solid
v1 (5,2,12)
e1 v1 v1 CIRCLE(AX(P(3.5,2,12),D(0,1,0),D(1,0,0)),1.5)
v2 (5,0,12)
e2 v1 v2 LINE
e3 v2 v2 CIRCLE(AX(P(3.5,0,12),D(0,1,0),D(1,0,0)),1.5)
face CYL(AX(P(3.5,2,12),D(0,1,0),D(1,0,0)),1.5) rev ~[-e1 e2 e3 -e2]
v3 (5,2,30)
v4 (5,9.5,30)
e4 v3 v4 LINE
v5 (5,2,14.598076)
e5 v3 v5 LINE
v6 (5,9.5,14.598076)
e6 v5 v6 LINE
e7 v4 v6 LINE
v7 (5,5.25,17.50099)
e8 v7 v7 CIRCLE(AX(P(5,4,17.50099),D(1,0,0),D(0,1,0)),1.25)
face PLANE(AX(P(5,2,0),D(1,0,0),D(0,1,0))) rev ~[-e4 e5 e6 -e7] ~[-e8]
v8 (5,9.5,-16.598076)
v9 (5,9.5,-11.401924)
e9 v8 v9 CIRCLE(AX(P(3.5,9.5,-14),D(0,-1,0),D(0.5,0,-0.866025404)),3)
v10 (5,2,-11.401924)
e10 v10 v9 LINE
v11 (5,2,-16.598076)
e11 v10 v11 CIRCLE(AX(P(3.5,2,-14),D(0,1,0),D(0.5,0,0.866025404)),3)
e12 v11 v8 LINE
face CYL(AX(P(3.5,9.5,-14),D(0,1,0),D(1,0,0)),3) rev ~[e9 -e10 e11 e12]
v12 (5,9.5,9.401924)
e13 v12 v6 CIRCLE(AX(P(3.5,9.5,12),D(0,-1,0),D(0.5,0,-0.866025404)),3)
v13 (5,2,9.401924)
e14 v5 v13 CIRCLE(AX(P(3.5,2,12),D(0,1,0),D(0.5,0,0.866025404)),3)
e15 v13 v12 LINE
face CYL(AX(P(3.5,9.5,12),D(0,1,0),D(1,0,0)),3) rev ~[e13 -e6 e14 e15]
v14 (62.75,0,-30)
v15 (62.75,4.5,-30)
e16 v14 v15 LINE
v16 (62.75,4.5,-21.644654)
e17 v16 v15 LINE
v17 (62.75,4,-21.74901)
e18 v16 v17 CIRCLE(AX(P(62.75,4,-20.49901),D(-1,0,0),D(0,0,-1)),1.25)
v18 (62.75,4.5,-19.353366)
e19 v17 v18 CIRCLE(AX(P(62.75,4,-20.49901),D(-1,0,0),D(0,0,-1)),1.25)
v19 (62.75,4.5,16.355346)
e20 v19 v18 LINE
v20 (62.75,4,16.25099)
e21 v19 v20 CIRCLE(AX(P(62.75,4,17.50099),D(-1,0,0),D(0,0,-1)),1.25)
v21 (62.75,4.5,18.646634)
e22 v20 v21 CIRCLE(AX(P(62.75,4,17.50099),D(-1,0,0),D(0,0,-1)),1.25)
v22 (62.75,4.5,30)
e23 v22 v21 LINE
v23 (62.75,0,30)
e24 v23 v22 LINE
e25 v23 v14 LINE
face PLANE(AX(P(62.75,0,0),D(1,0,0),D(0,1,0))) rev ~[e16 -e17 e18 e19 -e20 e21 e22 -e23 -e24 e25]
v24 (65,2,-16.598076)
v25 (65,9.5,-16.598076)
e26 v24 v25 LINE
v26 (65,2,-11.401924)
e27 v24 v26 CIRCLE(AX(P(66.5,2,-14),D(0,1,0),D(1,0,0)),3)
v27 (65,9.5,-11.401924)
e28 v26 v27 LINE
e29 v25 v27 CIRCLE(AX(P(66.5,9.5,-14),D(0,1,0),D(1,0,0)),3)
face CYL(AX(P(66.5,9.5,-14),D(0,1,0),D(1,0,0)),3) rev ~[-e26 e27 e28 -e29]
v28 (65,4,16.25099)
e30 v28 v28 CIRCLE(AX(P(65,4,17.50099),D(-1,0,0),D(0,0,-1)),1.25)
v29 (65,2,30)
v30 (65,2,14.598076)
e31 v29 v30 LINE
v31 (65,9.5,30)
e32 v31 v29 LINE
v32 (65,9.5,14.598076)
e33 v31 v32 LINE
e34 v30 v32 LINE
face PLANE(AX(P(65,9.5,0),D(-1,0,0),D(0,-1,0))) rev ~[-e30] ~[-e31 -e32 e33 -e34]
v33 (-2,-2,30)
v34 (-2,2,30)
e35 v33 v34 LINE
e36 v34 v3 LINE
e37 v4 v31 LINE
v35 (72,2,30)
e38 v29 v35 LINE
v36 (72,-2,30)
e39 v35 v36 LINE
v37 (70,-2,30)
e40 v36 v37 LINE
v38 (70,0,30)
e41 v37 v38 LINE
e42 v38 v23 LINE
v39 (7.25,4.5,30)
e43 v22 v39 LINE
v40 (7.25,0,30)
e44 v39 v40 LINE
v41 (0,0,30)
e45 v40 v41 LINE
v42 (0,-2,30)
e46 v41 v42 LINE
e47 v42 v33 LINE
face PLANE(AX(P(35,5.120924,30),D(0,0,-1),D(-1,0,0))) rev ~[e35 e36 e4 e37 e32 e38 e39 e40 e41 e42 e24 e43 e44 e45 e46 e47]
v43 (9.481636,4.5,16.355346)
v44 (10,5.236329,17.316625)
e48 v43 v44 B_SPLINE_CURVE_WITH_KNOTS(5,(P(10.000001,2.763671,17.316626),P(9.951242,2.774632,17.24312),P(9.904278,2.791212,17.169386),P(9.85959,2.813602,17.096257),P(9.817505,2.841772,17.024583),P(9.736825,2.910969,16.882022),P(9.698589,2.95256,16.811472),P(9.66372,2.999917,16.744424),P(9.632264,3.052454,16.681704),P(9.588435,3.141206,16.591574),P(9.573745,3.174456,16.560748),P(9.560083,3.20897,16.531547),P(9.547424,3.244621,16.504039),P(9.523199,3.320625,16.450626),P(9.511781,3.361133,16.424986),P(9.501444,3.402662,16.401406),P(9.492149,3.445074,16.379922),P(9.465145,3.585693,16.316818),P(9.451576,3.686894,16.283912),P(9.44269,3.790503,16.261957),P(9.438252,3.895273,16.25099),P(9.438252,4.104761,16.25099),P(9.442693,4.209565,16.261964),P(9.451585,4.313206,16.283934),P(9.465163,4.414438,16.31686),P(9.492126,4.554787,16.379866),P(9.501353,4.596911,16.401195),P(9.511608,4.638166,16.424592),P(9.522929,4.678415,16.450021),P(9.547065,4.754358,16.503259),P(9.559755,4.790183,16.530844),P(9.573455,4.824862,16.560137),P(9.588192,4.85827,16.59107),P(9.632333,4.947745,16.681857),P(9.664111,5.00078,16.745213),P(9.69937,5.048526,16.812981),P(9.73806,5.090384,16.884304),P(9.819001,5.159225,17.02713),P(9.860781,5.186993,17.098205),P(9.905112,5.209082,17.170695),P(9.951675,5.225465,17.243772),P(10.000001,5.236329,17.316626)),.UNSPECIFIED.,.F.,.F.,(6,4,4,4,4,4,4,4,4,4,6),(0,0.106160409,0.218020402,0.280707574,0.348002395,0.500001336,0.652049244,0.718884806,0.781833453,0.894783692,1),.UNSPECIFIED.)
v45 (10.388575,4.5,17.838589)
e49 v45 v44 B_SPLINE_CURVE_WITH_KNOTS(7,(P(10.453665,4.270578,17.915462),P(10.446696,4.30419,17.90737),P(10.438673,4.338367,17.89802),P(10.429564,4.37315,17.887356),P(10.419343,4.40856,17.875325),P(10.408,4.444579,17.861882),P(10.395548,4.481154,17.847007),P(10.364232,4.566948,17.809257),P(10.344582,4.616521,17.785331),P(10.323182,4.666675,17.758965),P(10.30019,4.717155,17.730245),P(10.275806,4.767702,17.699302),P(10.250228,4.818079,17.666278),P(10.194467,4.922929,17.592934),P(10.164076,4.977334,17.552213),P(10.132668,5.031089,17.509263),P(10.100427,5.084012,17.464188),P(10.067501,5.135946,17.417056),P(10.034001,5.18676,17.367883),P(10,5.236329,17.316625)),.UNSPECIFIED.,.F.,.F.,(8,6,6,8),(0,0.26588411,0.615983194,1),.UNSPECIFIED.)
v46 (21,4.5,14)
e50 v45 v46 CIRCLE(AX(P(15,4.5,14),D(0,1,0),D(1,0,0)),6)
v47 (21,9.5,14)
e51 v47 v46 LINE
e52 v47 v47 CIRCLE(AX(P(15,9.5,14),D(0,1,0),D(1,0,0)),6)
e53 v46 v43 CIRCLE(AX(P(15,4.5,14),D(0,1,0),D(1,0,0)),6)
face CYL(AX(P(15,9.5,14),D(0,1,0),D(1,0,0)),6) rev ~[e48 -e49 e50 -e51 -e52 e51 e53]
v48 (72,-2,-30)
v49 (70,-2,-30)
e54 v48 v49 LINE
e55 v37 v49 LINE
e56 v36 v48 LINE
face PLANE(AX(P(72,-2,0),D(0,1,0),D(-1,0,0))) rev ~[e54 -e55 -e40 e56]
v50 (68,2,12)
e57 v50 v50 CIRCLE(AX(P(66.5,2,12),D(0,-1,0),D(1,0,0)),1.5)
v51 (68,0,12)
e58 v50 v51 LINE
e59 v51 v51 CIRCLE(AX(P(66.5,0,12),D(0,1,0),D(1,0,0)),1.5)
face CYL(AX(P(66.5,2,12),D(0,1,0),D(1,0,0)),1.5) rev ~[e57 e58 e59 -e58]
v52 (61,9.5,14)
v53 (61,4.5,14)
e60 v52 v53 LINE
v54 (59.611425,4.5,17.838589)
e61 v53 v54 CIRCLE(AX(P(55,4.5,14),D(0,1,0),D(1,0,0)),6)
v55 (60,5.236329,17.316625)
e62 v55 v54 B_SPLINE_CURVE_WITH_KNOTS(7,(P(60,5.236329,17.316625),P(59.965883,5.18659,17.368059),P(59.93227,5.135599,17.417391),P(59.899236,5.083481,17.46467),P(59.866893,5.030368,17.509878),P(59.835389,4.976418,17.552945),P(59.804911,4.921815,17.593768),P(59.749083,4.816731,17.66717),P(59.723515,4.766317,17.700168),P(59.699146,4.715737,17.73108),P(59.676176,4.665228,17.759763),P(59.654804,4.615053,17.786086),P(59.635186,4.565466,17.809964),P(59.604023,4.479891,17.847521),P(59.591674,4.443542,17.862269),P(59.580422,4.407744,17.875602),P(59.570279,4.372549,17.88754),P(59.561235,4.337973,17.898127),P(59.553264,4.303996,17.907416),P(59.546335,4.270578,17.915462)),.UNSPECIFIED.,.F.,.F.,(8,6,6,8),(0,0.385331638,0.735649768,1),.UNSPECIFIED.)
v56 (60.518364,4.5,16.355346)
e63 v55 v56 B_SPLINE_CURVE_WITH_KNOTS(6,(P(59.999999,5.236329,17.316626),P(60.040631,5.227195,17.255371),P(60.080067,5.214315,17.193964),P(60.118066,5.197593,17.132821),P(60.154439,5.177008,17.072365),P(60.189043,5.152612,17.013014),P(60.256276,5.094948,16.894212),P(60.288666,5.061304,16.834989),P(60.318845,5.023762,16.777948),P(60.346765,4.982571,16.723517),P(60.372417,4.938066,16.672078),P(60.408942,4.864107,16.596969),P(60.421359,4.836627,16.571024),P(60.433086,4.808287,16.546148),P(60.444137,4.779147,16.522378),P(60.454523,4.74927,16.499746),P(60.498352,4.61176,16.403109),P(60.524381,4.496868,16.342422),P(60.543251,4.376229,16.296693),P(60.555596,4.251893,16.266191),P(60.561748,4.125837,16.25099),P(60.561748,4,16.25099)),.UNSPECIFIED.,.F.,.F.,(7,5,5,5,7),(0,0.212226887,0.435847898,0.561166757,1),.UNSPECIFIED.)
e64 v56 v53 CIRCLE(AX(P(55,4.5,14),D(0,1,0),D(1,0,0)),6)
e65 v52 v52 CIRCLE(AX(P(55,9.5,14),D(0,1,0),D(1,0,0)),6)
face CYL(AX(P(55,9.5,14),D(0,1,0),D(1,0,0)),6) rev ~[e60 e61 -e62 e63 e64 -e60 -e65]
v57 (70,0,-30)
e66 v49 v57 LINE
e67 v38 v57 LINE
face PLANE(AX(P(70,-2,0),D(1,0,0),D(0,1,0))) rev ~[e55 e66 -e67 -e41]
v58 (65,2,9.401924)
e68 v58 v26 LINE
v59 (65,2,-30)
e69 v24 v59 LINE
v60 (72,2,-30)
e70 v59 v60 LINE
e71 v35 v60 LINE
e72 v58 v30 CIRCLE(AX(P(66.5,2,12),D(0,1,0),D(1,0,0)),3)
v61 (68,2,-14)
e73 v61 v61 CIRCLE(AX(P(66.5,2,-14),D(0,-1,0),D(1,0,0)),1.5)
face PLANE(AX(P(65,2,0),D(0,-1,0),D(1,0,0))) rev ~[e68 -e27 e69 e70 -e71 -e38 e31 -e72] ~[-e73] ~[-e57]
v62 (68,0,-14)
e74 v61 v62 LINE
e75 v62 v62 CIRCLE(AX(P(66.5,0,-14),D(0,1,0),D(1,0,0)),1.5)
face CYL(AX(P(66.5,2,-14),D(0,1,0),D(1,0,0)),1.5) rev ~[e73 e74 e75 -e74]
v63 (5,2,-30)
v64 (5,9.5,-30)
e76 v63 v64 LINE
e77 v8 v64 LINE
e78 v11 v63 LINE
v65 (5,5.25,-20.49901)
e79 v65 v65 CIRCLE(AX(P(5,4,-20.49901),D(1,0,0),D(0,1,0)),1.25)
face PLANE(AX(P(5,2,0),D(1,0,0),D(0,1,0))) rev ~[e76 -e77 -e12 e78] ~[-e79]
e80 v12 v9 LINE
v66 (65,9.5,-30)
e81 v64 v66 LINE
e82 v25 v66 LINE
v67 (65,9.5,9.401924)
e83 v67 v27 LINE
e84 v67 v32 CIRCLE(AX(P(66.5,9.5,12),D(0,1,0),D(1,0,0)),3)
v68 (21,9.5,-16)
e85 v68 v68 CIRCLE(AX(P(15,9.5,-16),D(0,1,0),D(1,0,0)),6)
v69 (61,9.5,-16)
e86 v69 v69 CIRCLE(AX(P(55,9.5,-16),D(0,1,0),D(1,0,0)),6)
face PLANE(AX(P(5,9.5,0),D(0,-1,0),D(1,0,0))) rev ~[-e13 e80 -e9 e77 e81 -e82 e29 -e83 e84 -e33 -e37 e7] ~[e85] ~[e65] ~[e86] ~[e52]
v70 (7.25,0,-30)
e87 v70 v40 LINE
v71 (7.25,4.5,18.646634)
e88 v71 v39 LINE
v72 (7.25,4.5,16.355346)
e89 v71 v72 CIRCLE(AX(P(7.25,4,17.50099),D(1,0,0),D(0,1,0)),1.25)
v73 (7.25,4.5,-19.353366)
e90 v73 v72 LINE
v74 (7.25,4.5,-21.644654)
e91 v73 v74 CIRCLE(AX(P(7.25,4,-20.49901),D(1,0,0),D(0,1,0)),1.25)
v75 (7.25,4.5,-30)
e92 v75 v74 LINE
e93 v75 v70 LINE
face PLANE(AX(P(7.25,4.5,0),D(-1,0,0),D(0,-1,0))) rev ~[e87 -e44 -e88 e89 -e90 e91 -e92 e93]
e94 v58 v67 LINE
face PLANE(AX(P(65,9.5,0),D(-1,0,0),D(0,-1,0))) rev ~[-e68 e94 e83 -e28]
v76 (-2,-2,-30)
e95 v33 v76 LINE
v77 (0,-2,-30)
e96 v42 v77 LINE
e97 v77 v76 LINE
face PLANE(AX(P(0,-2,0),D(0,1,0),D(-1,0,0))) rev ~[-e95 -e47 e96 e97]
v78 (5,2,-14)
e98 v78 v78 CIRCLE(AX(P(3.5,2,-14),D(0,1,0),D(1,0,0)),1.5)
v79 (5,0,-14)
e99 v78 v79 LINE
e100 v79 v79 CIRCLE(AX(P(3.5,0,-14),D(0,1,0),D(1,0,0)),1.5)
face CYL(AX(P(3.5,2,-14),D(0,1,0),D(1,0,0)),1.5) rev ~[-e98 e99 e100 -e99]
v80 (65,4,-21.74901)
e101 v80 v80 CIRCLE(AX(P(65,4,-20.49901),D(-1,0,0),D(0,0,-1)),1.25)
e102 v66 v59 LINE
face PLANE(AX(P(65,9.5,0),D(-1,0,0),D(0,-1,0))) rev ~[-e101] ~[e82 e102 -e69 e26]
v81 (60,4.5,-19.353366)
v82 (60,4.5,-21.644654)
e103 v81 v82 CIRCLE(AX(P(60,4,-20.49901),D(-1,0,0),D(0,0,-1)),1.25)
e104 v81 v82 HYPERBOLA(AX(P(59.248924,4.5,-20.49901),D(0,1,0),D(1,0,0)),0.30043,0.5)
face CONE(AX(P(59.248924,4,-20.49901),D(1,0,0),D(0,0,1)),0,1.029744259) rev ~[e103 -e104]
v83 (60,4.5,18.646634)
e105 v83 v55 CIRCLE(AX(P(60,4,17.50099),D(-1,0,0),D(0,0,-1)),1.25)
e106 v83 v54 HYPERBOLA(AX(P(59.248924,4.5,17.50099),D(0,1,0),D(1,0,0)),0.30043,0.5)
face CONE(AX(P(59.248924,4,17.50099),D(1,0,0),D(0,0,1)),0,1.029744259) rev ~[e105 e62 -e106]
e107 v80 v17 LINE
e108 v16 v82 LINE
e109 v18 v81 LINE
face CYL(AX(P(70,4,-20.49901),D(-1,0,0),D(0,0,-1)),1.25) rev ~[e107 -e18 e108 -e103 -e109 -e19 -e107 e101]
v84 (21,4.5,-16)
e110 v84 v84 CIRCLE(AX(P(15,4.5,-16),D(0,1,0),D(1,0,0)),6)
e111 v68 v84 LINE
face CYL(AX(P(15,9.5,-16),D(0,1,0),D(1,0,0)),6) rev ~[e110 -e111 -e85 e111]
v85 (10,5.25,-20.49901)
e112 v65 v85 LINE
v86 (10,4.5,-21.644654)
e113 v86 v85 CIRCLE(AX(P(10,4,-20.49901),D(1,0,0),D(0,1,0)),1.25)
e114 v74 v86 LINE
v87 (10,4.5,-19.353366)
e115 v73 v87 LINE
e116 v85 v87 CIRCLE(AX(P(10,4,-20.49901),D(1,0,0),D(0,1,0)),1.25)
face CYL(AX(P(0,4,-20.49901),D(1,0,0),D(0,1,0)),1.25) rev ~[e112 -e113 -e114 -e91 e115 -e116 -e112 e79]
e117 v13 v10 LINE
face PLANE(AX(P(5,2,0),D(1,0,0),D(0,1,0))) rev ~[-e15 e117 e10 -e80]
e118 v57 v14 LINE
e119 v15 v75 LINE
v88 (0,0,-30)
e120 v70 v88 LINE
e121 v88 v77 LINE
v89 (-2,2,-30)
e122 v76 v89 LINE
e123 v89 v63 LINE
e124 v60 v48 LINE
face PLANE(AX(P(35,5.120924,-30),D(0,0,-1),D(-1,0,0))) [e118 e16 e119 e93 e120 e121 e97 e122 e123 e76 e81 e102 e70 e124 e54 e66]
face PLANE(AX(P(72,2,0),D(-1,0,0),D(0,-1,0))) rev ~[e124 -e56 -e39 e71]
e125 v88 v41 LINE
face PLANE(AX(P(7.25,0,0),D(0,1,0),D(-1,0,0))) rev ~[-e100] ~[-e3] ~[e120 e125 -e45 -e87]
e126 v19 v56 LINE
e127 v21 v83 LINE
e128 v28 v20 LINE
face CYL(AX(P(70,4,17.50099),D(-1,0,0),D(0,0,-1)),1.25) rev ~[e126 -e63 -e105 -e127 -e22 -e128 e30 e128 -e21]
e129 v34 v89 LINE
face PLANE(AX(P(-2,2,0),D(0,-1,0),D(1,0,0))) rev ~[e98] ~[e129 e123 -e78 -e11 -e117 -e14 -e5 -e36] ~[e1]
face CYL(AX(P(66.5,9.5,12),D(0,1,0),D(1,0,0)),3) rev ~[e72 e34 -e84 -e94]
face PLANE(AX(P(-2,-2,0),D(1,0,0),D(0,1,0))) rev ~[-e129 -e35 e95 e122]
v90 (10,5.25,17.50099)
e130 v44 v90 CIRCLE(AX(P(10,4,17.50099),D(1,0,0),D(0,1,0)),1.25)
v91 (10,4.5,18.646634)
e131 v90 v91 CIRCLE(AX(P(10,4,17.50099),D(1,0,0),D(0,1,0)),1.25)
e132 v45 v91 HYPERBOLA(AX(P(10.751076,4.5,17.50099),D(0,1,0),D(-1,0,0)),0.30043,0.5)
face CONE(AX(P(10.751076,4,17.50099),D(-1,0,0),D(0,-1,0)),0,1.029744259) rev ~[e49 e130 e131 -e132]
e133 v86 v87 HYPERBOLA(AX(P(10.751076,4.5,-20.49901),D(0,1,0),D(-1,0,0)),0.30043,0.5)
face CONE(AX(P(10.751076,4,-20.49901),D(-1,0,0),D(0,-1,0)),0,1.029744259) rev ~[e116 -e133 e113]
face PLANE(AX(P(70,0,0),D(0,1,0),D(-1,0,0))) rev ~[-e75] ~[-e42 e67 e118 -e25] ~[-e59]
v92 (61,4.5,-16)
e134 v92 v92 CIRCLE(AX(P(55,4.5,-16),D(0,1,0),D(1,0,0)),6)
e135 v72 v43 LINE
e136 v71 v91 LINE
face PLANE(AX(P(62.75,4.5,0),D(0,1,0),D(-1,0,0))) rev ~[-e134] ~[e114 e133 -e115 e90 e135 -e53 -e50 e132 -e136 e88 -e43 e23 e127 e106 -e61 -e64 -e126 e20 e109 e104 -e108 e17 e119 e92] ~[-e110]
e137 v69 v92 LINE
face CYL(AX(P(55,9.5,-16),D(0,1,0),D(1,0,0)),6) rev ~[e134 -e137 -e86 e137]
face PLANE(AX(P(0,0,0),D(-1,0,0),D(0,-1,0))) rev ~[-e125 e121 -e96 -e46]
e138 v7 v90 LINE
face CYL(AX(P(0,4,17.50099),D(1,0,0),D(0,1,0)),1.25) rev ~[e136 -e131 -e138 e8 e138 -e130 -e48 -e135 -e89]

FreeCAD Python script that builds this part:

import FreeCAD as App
import Part
import Sketcher

V = App.Vector
Q = App.Units.Quantity


def add_polygon(sketch, points):
    """Adds a closed chain of lines whose ends are joined by coincident constraints."""
    first, n = sketch.GeometryCount, len(points)
    for a, b in zip(points, points[1:] + points[:1]):
        sketch.addGeometry(Part.LineSegment(App.Vector(*a, 0), App.Vector(*b, 0)), False)
    for i in range(n):
        sketch.addConstraint(Sketcher.Constraint("Coincident", first + i, 2, first + (i + 1) % n, 1))

doc = App.newDocument("Part")
body = doc.addObject("PartDesign::Body", "Body")

# Sketch on XY plane
sketch1 = body.newObject("Sketcher::SketchObject", "Sketch")
sketch1.AttachmentSupport = (doc.getObject("XY_Plane"), [""])
sketch1.MapMode = "FlatFace"
add_polygon(sketch1, [(0, -2), (0, 0), (7.25, 0), (7.25, 4.5), (62.75, 4.5), (62.75, 0), (70, 0), (70, -2), (72, -2), (72, 2), (65, 2), (65, 9.5), (5, 9.5), (5, 2), (-2, 2), (-2, -2)])  # lines 0-15
sketch1.addConstraint([
    Sketcher.Constraint("Vertical", 0),
    Sketcher.Constraint("Horizontal", 1),
    Sketcher.Constraint("Vertical", 2),
    Sketcher.Constraint("Horizontal", 3),
    Sketcher.Constraint("Vertical", 4),
    Sketcher.Constraint("Horizontal", 5),
    Sketcher.Constraint("Vertical", 6),
    Sketcher.Constraint("Horizontal", 7),
    Sketcher.Constraint("Vertical", 8),
    Sketcher.Constraint("Horizontal", 9),
    Sketcher.Constraint("Vertical", 10),
    Sketcher.Constraint("Horizontal", 11),
    Sketcher.Constraint("Vertical", 12),
    Sketcher.Constraint("Horizontal", 13),
    Sketcher.Constraint("Vertical", 14),
    Sketcher.Constraint("Horizontal", 15),
    Sketcher.Constraint("Coincident", 0, 2, -1, 1),
    Sketcher.Constraint("PointOnObject", 4, 2, -1),
    Sketcher.Constraint("Horizontal", 9, 2, 12, 2),
    Sketcher.Constraint("Horizontal", 7, 2, 14, 2),
    Sketcher.Constraint("Equal", 1, 5),
    Sketcher.Constraint("Equal", 9, 13),
    Sketcher.Constraint("Equal", 7, 15),
    Sketcher.Constraint("Equal", 15, 0),
    Sketcher.Constraint("DistanceX", 7, 1, 7, 2, Q("2 mm")),
    Sketcher.Constraint("DistanceX", 9, 2, 9, 1, Q("7 mm")),
    Sketcher.Constraint("DistanceX", 11, 2, 11, 1, Q("60 mm")),
    Sketcher.Constraint("DistanceY", 8, 1, 8, 2, Q("4 mm")),
    Sketcher.Constraint("DistanceX", 3, 1, 3, 2, Q("55.5 mm")),
    Sketcher.Constraint("DistanceY", 2, 1, 2, 2, Q("4.5 mm")),
    Sketcher.Constraint("DistanceY", 10, 1, 10, 2, Q("7.5 mm")),
])
pad1 = body.newObject("PartDesign::Pad", "Pad")
pad1.Profile = sketch1
pad1.Length = 60
pad1.Midplane = True

# Sketch on YZ plane
sketch2 = body.newObject("Sketcher::SketchObject", "Sketch001")
sketch2.AttachmentSupport = (doc.getObject("YZ_Plane"), [""])
sketch2.MapMode = "FlatFace"
sketch2.AttachmentOffset = App.Placement(V(0, 0, 5), App.Rotation())
sketch2.addGeometry([
    Part.Circle(V(4, 17.50099, 0), V(0, 0, 1), 1.25),
    Part.Circle(V(4, -20.49901, 0), V(0, 0, 1), 1.25),
], False)
sketch2.addConstraint([
    Sketcher.Constraint("Equal", 0, 1),
    Sketcher.Constraint("Vertical", 0, 3, 1, 3),
    Sketcher.Constraint("Diameter", 0, Q("2.5 mm")),
    Sketcher.Constraint("DistanceX", -1, 1, 0, 3, Q("4 mm")),
    Sketcher.Constraint("DistanceY", 1, 3, 0, 3, Q("38 mm")),
    Sketcher.Constraint("DistanceY", -1, 1, 0, 3, Q("17.50099 mm")),
])
doc.recompute()
hole = body.newObject("PartDesign::Hole", "Hole")
hole.Profile = sketch2
hole.ThreadType = "None"
hole.Diameter = 2.5
hole.DepthType = "Dimension"
hole.Depth = 5
hole.DrillPoint = "Angled"
hole.DrillPointAngle = 118
hole.Reversed = True

# Sketch on YZ plane
sketch3 = body.newObject("Sketcher::SketchObject", "Sketch002")
sketch3.AttachmentSupport = (doc.getObject("YZ_Plane"), [""])
sketch3.MapMode = "FlatFace"
sketch3.AttachmentOffset = App.Placement(V(0, 0, 65), App.Rotation())
sketch3.addGeometry([
    Part.Circle(V(4, 17.50099, 0), V(0, 0, 1), 1.25),
    Part.Circle(V(4, -20.49901, 0), V(0, 0, 1), 1.25),
], False)
sketch3.addConstraint([
    Sketcher.Constraint("Equal", 0, 1),
    Sketcher.Constraint("Vertical", 0, 3, 1, 3),
    Sketcher.Constraint("Diameter", 0, Q("2.5 mm")),
    Sketcher.Constraint("DistanceX", -1, 1, 0, 3, Q("4 mm")),
    Sketcher.Constraint("DistanceY", 1, 3, 0, 3, Q("38 mm")),
    Sketcher.Constraint("DistanceY", -1, 1, 0, 3, Q("17.50099 mm")),
])
doc.recompute()
hole2 = body.newObject("PartDesign::Hole", "Hole001")
hole2.Profile = sketch3
hole2.ThreadType = "None"
hole2.Diameter = 2.5
hole2.DepthType = "Dimension"
hole2.Depth = 5
hole2.DrillPoint = "Angled"
hole2.DrillPointAngle = 118

# Sketch on XZ plane
sketch4 = body.newObject("Sketcher::SketchObject", "Sketch003")
sketch4.AttachmentSupport = (doc.getObject("XZ_Plane"), [""])
sketch4.MapMode = "FlatFace"
sketch4.AttachmentOffset = App.Placement(V(0, 0, -2), App.Rotation())
sketch4.addGeometry([
    Part.Circle(V(3.5, -14, 0), V(0, 0, 1), 1.5),
    Part.Circle(V(66.5, -14, 0), V(0, 0, 1), 1.5),
    Part.Circle(V(3.5, 12, 0), V(0, 0, 1), 1.5),
    Part.Circle(V(66.5, 12, 0), V(0, 0, 1), 1.5),
], False)
sketch4.addConstraint([
    Sketcher.Constraint("Equal", 0, 1),
    Sketcher.Constraint("Equal", 1, 2),
    Sketcher.Constraint("Equal", 2, 3),
    Sketcher.Constraint("Horizontal", 0, 3, 1, 3),
    Sketcher.Constraint("Horizontal", 2, 3, 3, 3),
    Sketcher.Constraint("Vertical", 0, 3, 2, 3),
    Sketcher.Constraint("Vertical", 1, 3, 3, 3),
    Sketcher.Constraint("Diameter", 0, Q("3 mm")),
    Sketcher.Constraint("DistanceY", 0, 3, -1, 1, Q("14 mm")),
    Sketcher.Constraint("DistanceY", -1, 1, 2, 3, Q("12 mm")),
    Sketcher.Constraint("DistanceX", 0, 3, 1, 3, Q("63 mm")),
    Sketcher.Constraint("DistanceX", -1, 1, 0, 3, Q("3.5 mm")),
])
pocket1 = body.newObject("PartDesign::Pocket", "Pocket")
pocket1.Profile = sketch4
pocket1.Type = "ThroughAll"
pocket1.Reversed = True

# Sketch on XZ plane
sketch5 = body.newObject("Sketcher::SketchObject", "Sketch004")
sketch5.AttachmentSupport = (doc.getObject("XZ_Plane"), [""])
sketch5.MapMode = "FlatFace"
sketch5.AttachmentOffset = App.Placement(V(0, 0, -9.5), App.Rotation())
sketch5.addGeometry([
    Part.Circle(V(3.5, -14, 0), V(0, 0, 1), 3),
    Part.Circle(V(3.5, 12, 0), V(0, 0, 1), 3),
    Part.Circle(V(66.5, -14, 0), V(0, 0, 1), 3),
    Part.Circle(V(66.5, 12, 0), V(0, 0, 1), 3),
], False)
sketch5.addConstraint([
    Sketcher.Constraint("Equal", 0, 1),
    Sketcher.Constraint("Equal", 1, 2),
    Sketcher.Constraint("Equal", 2, 3),
    Sketcher.Constraint("Horizontal", 0, 3, 2, 3),
    Sketcher.Constraint("Horizontal", 1, 3, 3, 3),
    Sketcher.Constraint("Vertical", 0, 3, 1, 3),
    Sketcher.Constraint("Vertical", 2, 3, 3, 3),
    Sketcher.Constraint("Diameter", 0, Q("6 mm")),
    Sketcher.Constraint("DistanceY", 0, 3, -1, 1, Q("14 mm")),
    Sketcher.Constraint("DistanceY", -1, 1, 1, 3, Q("12 mm")),
    Sketcher.Constraint("DistanceX", 0, 3, 2, 3, Q("63 mm")),
    Sketcher.Constraint("DistanceX", -1, 1, 0, 3, Q("3.5 mm")),
])
pocket2 = body.newObject("PartDesign::Pocket", "Pocket001")
pocket2.Profile = sketch5
pocket2.Length = 7.5
pocket2.Reversed = True

# Sketch on XZ plane
sketch6 = body.newObject("Sketcher::SketchObject", "Sketch005")
sketch6.AttachmentSupport = (doc.getObject("XZ_Plane"), [""])
sketch6.MapMode = "FlatFace"
sketch6.AttachmentOffset = App.Placement(V(0, 0, -9.5), App.Rotation())
sketch6.addGeometry([
    Part.Circle(V(15, -16, 0), V(0, 0, 1), 6),
    Part.Circle(V(55, -16, 0), V(0, 0, 1), 6),
    Part.Circle(V(15, 14, 0), V(0, 0, 1), 6),
    Part.Circle(V(55, 14, 0), V(0, 0, 1), 6),
], False)
sketch6.addConstraint([
    Sketcher.Constraint("Equal", 0, 1),
    Sketcher.Constraint("Equal", 1, 2),
    Sketcher.Constraint("Equal", 2, 3),
    Sketcher.Constraint("Horizontal", 0, 3, 1, 3),
    Sketcher.Constraint("Horizontal", 2, 3, 3, 3),
    Sketcher.Constraint("Vertical", 0, 3, 2, 3),
    Sketcher.Constraint("Vertical", 1, 3, 3, 3),
    Sketcher.Constraint("Diameter", 0, Q("12 mm")),
    Sketcher.Constraint("DistanceX", -1, 1, 0, 3, Q("15 mm")),
    Sketcher.Constraint("DistanceY", 0, 3, -1, 1, Q("16 mm")),
    Sketcher.Constraint("DistanceX", -1, 1, 1, 3, Q("55 mm")),
    Sketcher.Constraint("DistanceY", -1, 1, 2, 3, Q("14 mm")),
])
pocket3 = body.newObject("PartDesign::Pocket", "Pocket002")
pocket3.Profile = sketch6
pocket3.Type = "ThroughAll"
pocket3.Reversed = True

doc.recompute()
